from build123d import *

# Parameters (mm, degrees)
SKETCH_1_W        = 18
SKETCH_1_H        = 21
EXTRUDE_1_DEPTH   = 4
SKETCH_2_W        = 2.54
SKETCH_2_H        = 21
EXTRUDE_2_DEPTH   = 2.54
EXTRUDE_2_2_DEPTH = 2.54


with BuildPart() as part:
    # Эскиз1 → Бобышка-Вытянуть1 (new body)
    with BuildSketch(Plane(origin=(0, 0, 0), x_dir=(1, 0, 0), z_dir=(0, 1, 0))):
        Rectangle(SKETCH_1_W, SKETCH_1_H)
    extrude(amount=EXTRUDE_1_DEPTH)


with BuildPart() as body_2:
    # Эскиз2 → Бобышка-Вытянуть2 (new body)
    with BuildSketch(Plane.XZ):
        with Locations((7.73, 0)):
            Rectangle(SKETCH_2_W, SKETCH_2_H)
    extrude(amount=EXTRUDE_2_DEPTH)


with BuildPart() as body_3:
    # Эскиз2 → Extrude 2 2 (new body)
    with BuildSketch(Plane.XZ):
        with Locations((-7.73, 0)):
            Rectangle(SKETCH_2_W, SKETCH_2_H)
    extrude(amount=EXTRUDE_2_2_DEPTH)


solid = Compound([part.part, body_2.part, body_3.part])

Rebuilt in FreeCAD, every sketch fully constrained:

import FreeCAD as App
import Part
import Sketcher
Q = App.Units.Quantity


def add_polygon(sketch, points):
    """Adds a closed chain of lines whose ends are joined by coincident constraints."""
    first, n = sketch.GeometryCount, len(points)
    for a, b in zip(points, points[1:] + points[:1]):
        sketch.addGeometry(Part.LineSegment(App.Vector(*a, 0), App.Vector(*b, 0)), False)
    for i in range(n):
        sketch.addConstraint(Sketcher.Constraint("Coincident", first + i, 2, first + (i + 1) % n, 1))

doc = App.newDocument("Part")
body = doc.addObject("PartDesign::Body", "Body")

# Sketch on XZ plane
sketch1 = doc.addObject("Sketcher::SketchObject", "Sketch")
body.addObject(sketch1)
sketch1.AttachmentSupport = (doc.XZ_Plane, [""])
sketch1.MapMode = "FlatFace"
add_polygon(sketch1, [(-9, -10), (-9, 10), (9, 10), (9, -10)])  # lines 0-3
sketch1.addConstraint([
    Sketcher.Constraint("Vertical", 0),
    Sketcher.Constraint("Horizontal", 1),
    Sketcher.Constraint("Vertical", 2),
    Sketcher.Constraint("Horizontal", 3),
    Sketcher.Constraint("Symmetric", 0, 2, 2, 2, -1, 1),
    Sketcher.Constraint("DistanceX", 1, 1, 1, 2, Q("18 mm")),
    Sketcher.Constraint("DistanceY", 0, 1, 0, 2, Q("21 mm")),
])
pad1 = doc.addObject("PartDesign::Pad", "Pad")
body.addObject(pad1)
pad1.Profile = sketch1
pad1.Length = 4
pad1.Reversed = True
body2 = doc.addObject("PartDesign::Body", "Body001")

# Sketch on XZ plane
sketch2 = doc.addObject("Sketcher::SketchObject", "Sketch001")
body2.addObject(sketch2)
sketch2.AttachmentSupport = (doc.getObject("XZ_Plane001"), [""])
sketch2.MapMode = "FlatFace"
add_polygon(sketch2, [(6.5, 10.5), (6.5, -10.5), (9, -10.5), (9, 10.5)])  # lines 0-3
sketch2.addConstraint([
    Sketcher.Constraint("Vertical", 0),
    Sketcher.Constraint("Horizontal", 1),
    Sketcher.Constraint("Vertical", 2),
    Sketcher.Constraint("Horizontal", 3),
    Sketcher.Constraint("DistanceY", 0, 2, 0, 1, Q("21 mm")),
    Sketcher.Constraint("DistanceX", -1, 1, 1, 2, Q("9 mm")),
    Sketcher.Constraint("DistanceX", 1, 1, 1, 2, Q("2.54 mm")),
    Sketcher.Constraint("DistanceY", 0, 2, -1, 1, Q("10.5 mm")),
])
pad2 = doc.addObject("PartDesign::Pad", "Pad001")
body2.addObject(pad2)
pad2.Profile = sketch2
pad2.Length = 2.54
body3 = doc.addObject("PartDesign::Body", "Body002")

# Sketch on XZ plane
sketch3 = doc.addObject("Sketcher::SketchObject", "Sketch002")
body3.addObject(sketch3)
sketch3.AttachmentSupport = (doc.getObject("XZ_Plane002"), [""])
sketch3.MapMode = "FlatFace"
add_polygon(sketch3, [(-9, 10.5), (-9, -10.5), (-6.5, -10.5), (-6.5, 10.5)])  # lines 0-3
sketch3.addConstraint([
    Sketcher.Constraint("Vertical", 0),
    Sketcher.Constraint("Horizontal", 1),
    Sketcher.Constraint("Vertical", 2),
    Sketcher.Constraint("Horizontal", 3),
    Sketcher.Constraint("DistanceY", 0, 2, 0, 1, Q("21 mm")),
    Sketcher.Constraint("DistanceX", 0, 2, -1, 1, Q("9 mm")),
    Sketcher.Constraint("DistanceX", 1, 1, 1, 2, Q("2.54 mm")),
    Sketcher.Constraint("DistanceY", 0, 2, -1, 1, Q("10.5 mm")),
])
pad3 = doc.addObject("PartDesign::Pad", "Pad002")
body3.addObject(pad3)
pad3.Profile = sketch3
pad3.Length = 2.54

doc.recompute()
